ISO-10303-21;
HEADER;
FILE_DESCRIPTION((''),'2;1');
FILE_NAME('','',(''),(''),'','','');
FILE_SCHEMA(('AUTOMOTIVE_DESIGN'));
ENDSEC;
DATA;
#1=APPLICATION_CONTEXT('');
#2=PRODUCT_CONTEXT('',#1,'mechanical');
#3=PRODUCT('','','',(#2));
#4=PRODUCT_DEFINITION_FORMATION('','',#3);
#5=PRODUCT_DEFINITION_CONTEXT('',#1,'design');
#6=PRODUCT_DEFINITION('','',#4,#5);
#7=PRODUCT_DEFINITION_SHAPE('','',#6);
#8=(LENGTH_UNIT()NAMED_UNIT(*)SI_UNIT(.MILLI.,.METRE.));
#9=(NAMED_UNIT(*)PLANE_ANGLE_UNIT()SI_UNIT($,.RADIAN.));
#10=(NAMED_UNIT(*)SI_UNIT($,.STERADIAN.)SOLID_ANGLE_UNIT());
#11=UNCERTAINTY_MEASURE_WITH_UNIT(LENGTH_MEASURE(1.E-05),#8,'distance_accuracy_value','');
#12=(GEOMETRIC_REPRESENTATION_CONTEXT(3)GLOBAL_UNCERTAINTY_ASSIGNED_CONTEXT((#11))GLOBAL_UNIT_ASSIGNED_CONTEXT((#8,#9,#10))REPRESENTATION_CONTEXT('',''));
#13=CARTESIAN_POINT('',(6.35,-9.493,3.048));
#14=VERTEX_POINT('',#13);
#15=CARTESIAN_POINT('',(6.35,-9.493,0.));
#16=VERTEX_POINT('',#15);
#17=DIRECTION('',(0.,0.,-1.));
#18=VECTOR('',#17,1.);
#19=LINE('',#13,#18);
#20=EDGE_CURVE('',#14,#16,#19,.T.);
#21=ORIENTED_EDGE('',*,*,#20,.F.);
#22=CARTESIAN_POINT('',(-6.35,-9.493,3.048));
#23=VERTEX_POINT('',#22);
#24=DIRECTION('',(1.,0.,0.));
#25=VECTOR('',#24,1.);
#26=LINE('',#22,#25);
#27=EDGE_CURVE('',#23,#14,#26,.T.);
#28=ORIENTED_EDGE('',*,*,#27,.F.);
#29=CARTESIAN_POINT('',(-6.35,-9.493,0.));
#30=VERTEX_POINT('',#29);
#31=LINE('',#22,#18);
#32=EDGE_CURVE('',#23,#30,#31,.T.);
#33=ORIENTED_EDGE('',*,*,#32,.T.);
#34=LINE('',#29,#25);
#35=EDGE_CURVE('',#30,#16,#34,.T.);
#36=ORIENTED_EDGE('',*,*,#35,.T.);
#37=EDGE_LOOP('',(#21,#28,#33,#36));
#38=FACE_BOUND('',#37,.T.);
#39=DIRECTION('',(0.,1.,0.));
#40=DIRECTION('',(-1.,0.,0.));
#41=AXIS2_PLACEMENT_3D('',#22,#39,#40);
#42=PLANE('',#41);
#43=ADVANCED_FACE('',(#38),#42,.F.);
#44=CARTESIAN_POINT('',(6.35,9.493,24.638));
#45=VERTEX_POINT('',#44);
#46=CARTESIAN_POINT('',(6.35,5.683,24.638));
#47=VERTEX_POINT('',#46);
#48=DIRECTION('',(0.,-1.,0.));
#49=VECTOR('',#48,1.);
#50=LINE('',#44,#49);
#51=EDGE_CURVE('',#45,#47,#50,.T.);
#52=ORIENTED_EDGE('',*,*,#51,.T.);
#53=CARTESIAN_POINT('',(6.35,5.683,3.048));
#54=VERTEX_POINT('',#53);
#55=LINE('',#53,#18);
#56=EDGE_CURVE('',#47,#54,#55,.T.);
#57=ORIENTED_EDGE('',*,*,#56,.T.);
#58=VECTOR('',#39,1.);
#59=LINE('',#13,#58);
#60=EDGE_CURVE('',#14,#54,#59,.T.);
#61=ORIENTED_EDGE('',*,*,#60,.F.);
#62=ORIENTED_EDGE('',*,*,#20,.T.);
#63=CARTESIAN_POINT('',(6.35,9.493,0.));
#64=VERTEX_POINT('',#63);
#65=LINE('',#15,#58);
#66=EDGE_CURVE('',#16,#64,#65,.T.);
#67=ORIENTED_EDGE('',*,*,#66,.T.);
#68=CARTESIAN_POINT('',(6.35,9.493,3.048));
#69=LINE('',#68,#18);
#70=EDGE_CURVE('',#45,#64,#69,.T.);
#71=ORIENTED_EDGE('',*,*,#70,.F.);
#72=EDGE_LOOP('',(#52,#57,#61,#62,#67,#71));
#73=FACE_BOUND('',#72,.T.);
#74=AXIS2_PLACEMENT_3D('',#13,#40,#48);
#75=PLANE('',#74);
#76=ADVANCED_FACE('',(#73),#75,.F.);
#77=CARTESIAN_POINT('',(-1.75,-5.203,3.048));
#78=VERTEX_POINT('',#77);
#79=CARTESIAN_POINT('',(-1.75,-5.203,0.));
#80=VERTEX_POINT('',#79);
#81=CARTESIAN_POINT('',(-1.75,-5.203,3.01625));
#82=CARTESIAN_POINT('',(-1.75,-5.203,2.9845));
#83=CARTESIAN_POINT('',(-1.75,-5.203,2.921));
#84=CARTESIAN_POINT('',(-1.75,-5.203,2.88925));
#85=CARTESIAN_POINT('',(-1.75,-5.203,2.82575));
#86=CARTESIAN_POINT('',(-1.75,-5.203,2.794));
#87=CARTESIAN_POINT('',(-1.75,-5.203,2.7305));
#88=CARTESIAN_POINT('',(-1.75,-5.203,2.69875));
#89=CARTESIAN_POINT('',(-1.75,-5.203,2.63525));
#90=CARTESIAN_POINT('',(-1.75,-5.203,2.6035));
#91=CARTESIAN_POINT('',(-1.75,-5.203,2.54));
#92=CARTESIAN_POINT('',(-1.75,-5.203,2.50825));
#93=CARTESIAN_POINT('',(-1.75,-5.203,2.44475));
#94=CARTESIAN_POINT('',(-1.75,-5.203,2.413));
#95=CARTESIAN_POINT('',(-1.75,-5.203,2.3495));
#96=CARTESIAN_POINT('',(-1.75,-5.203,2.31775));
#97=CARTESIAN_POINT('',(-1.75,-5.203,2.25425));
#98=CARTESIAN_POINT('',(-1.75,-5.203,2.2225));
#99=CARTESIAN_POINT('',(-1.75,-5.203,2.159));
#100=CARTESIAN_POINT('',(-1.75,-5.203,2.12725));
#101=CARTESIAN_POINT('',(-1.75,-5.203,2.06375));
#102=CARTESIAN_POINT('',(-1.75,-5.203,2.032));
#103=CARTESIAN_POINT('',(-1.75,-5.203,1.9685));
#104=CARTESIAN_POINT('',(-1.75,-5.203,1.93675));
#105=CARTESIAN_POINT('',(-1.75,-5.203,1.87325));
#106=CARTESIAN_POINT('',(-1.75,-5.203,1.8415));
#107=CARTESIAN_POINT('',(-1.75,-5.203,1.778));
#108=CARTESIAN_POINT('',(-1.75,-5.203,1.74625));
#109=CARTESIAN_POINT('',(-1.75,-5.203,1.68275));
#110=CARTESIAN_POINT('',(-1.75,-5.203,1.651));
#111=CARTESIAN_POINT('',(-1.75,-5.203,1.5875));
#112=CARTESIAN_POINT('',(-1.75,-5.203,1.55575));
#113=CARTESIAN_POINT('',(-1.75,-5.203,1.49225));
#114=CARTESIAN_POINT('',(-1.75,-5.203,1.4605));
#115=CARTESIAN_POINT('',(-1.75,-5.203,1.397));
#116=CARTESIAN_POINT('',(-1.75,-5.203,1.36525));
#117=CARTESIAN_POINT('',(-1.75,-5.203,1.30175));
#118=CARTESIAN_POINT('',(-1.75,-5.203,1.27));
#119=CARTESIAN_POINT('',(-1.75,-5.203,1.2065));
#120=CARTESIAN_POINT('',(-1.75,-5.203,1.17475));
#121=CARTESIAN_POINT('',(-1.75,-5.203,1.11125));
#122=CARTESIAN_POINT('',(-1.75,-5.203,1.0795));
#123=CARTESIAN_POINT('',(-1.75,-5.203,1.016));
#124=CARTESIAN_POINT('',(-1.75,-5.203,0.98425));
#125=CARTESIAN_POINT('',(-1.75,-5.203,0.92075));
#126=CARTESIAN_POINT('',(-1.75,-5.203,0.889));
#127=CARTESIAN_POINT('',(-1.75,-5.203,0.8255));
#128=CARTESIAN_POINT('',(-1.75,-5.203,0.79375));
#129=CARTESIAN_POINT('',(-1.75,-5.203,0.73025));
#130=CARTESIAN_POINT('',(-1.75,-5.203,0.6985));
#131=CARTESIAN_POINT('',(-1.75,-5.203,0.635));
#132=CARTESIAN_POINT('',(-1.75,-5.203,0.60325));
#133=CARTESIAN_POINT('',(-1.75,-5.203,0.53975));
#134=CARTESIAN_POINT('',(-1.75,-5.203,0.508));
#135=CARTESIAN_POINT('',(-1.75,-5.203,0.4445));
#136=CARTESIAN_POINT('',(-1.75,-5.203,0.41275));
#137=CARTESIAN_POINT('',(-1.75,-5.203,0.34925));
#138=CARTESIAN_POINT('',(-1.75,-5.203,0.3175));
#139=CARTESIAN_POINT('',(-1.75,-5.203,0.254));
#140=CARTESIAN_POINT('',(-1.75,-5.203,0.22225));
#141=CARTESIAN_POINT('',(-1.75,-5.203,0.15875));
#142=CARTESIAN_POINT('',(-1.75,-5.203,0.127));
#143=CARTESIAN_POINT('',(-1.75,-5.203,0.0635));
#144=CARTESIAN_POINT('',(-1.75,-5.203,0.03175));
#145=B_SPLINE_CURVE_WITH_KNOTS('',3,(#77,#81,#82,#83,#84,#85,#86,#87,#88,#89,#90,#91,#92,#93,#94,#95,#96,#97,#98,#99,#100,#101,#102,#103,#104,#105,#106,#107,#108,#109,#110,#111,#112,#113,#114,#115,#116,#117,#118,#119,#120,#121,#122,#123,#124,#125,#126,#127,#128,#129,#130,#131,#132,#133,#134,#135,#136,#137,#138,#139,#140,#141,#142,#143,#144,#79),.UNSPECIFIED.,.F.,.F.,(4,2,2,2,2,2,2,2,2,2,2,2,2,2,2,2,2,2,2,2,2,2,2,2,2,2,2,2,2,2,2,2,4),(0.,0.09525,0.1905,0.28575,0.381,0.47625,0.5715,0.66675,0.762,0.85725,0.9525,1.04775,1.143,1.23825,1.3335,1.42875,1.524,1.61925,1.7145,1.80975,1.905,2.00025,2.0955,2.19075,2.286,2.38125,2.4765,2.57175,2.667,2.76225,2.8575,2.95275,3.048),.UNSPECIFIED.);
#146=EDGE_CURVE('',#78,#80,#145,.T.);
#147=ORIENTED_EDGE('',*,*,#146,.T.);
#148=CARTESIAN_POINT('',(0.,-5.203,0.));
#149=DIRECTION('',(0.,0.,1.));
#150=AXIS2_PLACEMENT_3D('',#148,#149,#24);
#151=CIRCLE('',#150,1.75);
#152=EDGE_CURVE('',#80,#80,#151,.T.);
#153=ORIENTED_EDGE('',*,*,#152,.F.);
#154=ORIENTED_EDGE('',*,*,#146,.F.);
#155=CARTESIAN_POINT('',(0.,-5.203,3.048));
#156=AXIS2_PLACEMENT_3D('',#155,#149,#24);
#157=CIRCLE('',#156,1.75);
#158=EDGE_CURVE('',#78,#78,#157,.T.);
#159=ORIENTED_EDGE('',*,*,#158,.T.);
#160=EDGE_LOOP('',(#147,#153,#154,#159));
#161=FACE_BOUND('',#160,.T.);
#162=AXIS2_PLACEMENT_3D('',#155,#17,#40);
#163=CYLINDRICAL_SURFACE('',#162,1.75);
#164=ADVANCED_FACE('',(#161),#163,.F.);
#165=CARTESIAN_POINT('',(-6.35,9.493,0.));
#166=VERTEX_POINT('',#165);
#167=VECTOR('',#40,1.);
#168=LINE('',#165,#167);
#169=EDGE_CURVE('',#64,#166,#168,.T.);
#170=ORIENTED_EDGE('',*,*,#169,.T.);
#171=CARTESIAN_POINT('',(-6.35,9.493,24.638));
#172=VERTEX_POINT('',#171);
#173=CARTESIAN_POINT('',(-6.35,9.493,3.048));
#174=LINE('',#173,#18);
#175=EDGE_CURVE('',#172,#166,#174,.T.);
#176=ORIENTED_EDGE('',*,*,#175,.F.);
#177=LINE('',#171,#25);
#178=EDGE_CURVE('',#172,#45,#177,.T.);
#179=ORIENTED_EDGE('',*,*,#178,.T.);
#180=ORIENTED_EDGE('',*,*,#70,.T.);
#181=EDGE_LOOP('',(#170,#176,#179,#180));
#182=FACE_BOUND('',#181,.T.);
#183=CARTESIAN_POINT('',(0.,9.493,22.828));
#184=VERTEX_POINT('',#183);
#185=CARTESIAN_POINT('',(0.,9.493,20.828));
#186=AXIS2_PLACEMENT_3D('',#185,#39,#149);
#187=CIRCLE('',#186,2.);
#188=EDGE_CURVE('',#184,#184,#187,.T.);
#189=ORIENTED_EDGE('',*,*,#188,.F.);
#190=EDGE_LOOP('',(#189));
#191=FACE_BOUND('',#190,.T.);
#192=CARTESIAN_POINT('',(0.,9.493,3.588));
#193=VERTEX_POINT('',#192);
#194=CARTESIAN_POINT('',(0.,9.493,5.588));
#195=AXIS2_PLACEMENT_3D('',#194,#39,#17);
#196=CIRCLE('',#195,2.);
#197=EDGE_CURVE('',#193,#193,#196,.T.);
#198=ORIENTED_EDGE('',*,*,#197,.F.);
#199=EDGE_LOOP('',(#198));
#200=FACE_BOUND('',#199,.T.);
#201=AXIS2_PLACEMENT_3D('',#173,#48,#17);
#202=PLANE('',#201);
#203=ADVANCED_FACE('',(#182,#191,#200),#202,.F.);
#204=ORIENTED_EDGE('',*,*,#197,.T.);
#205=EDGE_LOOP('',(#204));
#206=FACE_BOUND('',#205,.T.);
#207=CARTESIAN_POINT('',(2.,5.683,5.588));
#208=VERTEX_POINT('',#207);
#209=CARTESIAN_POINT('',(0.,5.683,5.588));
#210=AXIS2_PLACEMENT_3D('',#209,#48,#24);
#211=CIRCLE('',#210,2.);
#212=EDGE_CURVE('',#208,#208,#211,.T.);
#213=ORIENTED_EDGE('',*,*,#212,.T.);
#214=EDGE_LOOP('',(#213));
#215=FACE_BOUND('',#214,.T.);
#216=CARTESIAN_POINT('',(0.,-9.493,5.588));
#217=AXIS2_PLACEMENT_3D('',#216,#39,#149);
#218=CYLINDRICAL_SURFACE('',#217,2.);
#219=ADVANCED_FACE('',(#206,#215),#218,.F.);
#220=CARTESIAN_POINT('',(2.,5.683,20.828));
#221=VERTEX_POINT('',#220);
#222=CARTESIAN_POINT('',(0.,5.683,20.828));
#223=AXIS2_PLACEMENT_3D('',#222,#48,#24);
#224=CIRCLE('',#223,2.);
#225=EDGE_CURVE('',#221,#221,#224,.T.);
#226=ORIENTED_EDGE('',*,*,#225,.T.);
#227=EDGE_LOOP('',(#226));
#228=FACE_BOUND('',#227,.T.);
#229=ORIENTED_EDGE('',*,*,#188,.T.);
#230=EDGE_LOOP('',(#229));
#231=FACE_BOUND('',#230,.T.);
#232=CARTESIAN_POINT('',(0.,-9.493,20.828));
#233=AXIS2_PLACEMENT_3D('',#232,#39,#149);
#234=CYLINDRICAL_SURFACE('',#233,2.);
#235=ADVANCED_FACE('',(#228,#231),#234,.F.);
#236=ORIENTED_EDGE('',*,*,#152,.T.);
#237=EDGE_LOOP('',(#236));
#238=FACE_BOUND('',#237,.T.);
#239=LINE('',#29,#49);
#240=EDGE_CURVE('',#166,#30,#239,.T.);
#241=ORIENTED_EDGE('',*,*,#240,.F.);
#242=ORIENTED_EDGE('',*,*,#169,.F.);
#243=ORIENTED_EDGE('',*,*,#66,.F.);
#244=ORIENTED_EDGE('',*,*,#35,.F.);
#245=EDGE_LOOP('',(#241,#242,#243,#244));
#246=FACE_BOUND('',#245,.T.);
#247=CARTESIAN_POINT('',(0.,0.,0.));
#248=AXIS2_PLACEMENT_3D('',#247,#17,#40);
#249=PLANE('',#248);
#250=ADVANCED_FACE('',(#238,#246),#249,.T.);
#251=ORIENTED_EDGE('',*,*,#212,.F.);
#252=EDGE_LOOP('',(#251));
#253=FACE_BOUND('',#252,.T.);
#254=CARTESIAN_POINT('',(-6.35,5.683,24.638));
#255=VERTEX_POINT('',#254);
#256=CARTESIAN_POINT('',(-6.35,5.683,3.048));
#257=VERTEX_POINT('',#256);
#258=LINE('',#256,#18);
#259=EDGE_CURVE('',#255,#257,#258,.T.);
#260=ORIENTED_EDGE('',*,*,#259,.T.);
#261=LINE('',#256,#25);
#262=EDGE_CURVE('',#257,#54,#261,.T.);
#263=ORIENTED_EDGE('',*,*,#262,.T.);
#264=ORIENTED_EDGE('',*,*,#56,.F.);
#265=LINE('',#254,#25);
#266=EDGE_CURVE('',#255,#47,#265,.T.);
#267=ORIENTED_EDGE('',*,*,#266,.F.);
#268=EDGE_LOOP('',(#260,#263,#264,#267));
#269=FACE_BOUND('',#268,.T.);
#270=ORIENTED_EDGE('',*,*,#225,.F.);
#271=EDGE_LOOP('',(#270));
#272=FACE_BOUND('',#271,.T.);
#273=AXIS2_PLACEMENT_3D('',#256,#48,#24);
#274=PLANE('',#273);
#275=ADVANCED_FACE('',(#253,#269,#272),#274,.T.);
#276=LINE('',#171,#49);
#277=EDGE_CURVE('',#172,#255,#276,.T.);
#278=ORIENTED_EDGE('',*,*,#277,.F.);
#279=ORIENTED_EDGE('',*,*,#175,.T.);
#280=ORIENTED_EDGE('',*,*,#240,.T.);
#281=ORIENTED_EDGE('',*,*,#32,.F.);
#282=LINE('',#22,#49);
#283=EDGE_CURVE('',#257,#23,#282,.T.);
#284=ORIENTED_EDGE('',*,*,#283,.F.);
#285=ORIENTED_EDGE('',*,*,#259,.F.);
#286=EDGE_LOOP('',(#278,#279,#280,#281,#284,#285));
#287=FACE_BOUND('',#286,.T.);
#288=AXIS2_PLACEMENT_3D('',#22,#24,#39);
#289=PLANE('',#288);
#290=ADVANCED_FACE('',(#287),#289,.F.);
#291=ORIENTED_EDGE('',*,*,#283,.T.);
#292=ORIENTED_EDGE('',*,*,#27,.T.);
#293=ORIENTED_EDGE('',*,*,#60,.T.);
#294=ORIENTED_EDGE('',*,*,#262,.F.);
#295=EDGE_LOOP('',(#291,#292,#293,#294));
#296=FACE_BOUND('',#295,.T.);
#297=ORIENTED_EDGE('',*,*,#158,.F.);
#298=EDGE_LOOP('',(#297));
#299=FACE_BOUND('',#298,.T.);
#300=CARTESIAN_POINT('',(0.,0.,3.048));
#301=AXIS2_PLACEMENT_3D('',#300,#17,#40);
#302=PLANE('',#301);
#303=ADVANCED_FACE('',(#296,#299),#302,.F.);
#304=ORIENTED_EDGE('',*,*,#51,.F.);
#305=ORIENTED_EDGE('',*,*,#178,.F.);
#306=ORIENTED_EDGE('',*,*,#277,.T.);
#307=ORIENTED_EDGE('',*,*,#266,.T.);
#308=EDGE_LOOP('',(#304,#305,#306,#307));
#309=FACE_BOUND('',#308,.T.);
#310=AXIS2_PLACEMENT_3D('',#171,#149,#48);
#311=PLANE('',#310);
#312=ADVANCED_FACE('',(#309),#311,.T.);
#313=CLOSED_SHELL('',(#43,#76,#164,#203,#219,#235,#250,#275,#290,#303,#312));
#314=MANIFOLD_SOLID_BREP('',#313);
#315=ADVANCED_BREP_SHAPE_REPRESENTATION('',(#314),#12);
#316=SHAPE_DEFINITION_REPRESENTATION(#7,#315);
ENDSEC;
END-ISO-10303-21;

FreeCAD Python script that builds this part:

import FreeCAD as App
import Part
import Sketcher

V = App.Vector
Q = App.Units.Quantity


def add_polygon(sketch, points):
    """Adds a closed chain of lines whose ends are joined by coincident constraints."""
    first, n = sketch.GeometryCount, len(points)
    for a, b in zip(points, points[1:] + points[:1]):
        sketch.addGeometry(Part.LineSegment(App.Vector(*a, 0), App.Vector(*b, 0)), False)
    for i in range(n):
        sketch.addConstraint(Sketcher.Constraint("Coincident", first + i, 2, first + (i + 1) % n, 1))

doc = App.newDocument("Part")
params = doc.addObject("Spreadsheet::Sheet", "Params")
for row, (alias, value) in enumerate([
    ("sketch1_width", "0.5 in"),
    ("pad1_length", "0.12 in"),
    ("sketch2_width", "0.15 in"),
    ("sketch2_height", "0.85 in"),
    ("pad2_length", "0.5 in"),
], start=1):
    params.set(f"A{row}", alias)
    params.set(f"B{row}", "=" + value)
    params.setAlias(f"B{row}", alias)

body = doc.addObject("PartDesign::Body", "Body")

# Sketch on XY plane
sketch1 = body.newObject("Sketcher::SketchObject", "Sketch")
sketch1.AttachmentSupport = (doc.getObject("XY_Plane"), [""])
sketch1.MapMode = "FlatFace"
add_polygon(sketch1, [(-6.35, 9.493), (-6.35, -9.493), (6.35, -9.493), (6.35, 9.493)])  # lines 0-3
sketch1.addGeometry(Part.Circle(V(0, -5.203, 0), V(0, 0, 1), 1.75), False)  # 4
sketch1.addConstraint(Sketcher.Constraint("Vertical", 0))
sketch1.addConstraint(Sketcher.Constraint("Horizontal", 1))
sketch1.addConstraint(Sketcher.Constraint("Vertical", 2))
sketch1.addConstraint(Sketcher.Constraint("Horizontal", 3))
sketch1.addConstraint(Sketcher.Constraint("Symmetric", 0, 2, 2, 2, -1, 1))
sketch1.addConstraint(Sketcher.Constraint("PointOnObject", 4, 3, -2))
sketch1.addConstraint(Sketcher.Constraint("DistanceX", 1, 1, 1, 2, Q("0.5 in")))
sketch1.addConstraint(Sketcher.Constraint("Diameter", 4, Q("3.5 mm")))
sketch1.addConstraint(Sketcher.Constraint("DistanceY", 0, 2, 0, 1, Q("18.986 mm")))
sketch1.addConstraint(Sketcher.Constraint("DistanceY", 4, 3, -1, 1, Q("5.203 mm")))
sketch1.setExpression("Constraints[10]", "Params.sketch1_width")
pad1 = body.newObject("PartDesign::Pad", "Pad")
pad1.Profile = sketch1
pad1.setExpression("Length", "Params.pad1_length")

# Sketch on YZ plane
sketch2 = body.newObject("Sketcher::SketchObject", "Sketch001")
sketch2.AttachmentSupport = (doc.getObject("YZ_Plane"), [""])
sketch2.MapMode = "FlatFace"
sketch2.AttachmentOffset = App.Placement(V(0, 0, 0.25 * 25.4), App.Rotation())
add_polygon(sketch2, [(9.493, 24.638), (5.683, 24.638), (5.683, 3.048), (9.493, 3.048)])  # lines 0-3
sketch2.addConstraint(Sketcher.Constraint("Horizontal", 0))
sketch2.addConstraint(Sketcher.Constraint("Vertical", 1))
sketch2.addConstraint(Sketcher.Constraint("Horizontal", 2))
sketch2.addConstraint(Sketcher.Constraint("Vertical", 3))
sketch2.addConstraint(Sketcher.Constraint("DistanceX", 0, 2, 0, 1, Q("0.15 in")))
sketch2.addConstraint(Sketcher.Constraint("DistanceY", 1, 2, 1, 1, Q("0.85 in")))
sketch2.addConstraint(Sketcher.Constraint("DistanceY", -1, 1, 0, 2, Q("0.97 in")))
sketch2.addConstraint(Sketcher.Constraint("DistanceX", -1, 1, 0, 2, Q("5.683 mm")))
sketch2.setExpression("Constraints[8]", "Params.sketch2_width")
sketch2.setExpression("Constraints[9]", "Params.sketch2_height")
pad2 = body.newObject("PartDesign::Pad", "Pad001")
pad2.Profile = sketch2
pad2.setExpression("Length", "Params.pad2_length")
pad2.Reversed = True

# Sketch on XZ plane
sketch3 = body.newObject("Sketcher::SketchObject", "Sketch002")
sketch3.AttachmentSupport = (doc.getObject("XZ_Plane"), [""])
sketch3.MapMode = "FlatFace"
sketch3.AttachmentOffset = App.Placement(V(0, 0, -9.493), App.Rotation())
sketch3.addGeometry(Part.Circle(V(0, 20.828, 0), V(0, 0, 1), 2), False)
sketch3.addGeometry(Part.Circle(V(0, 5.588, 0), V(0, 0, 1), 2), False)
sketch3.addConstraint(Sketcher.Constraint("Equal", 0, 1))
sketch3.addConstraint(Sketcher.Constraint("PointOnObject", 0, 3, -2))
sketch3.addConstraint(Sketcher.Constraint("PointOnObject", 1, 3, -2))
sketch3.addConstraint(Sketcher.Constraint("DistanceY", 1, 3, 0, 3, Q("0.6 in")))
sketch3.addConstraint(Sketcher.Constraint("Diameter", 0, Q("4 mm")))
sketch3.addConstraint(Sketcher.Constraint("DistanceY", -1, 1, 0, 3, Q("0.82 in")))
pocket1 = body.newObject("PartDesign::Pocket", "Pocket")
pocket1.Profile = sketch3
pocket1.Type = "ThroughAll"
pocket1.Reversed = True

doc.recompute()
